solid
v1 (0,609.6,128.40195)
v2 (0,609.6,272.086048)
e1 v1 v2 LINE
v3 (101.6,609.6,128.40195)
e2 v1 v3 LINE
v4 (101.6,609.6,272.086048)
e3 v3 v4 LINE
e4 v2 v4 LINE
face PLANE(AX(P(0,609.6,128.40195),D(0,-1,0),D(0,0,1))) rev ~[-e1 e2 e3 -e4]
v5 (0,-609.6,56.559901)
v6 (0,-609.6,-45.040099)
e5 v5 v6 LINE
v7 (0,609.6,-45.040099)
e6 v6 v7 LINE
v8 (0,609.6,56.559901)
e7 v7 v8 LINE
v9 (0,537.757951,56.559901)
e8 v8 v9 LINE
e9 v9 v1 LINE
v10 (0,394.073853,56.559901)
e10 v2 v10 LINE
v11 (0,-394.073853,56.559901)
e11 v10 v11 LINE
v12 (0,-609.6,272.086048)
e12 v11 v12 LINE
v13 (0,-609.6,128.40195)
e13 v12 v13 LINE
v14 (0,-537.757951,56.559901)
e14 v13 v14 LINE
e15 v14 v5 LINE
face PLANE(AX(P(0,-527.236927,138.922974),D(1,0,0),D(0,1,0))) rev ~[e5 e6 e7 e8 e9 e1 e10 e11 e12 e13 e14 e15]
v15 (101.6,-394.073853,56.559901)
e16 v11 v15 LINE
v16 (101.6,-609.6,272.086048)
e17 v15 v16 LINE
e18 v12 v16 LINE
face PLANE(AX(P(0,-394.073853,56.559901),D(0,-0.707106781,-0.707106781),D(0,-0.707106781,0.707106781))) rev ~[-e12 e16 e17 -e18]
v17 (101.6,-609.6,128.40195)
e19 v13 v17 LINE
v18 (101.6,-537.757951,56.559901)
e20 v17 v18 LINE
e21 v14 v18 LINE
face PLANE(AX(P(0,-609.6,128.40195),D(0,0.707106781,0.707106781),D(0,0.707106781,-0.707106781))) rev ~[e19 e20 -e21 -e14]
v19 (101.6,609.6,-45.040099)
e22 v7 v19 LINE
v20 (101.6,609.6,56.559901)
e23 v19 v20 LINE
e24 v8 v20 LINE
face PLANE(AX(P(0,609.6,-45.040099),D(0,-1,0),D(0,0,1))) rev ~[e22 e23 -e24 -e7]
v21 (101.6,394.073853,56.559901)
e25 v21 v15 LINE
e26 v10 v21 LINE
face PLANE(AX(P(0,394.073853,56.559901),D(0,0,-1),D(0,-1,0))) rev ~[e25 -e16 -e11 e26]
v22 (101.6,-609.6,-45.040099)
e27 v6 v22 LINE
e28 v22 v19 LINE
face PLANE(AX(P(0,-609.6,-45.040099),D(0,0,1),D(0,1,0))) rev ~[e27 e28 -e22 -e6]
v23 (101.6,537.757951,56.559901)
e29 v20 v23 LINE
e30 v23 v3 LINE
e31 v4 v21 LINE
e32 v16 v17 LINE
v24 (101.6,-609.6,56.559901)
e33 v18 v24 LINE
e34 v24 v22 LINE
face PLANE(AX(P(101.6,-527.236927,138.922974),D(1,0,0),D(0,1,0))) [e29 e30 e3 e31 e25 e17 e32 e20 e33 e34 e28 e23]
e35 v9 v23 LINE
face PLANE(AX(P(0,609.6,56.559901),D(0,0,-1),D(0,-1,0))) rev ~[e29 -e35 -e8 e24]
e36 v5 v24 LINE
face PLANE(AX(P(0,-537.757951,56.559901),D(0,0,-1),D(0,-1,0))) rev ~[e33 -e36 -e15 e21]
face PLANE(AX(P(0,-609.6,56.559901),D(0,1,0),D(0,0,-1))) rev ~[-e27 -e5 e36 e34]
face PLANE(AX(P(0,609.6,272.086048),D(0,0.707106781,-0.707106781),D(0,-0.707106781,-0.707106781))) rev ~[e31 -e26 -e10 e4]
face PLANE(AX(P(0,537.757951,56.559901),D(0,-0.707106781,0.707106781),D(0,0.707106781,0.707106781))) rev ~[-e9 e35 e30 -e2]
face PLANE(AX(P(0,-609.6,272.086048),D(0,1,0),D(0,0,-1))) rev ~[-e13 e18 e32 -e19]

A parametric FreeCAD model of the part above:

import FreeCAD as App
import Part
import Sketcher

V = App.Vector
Q = App.Units.Quantity

doc = App.newDocument("Part")
params = doc.addObject("Spreadsheet::Sheet", "Params")
for row, (alias, value) in enumerate([
    ("sketch1_width", "48 in"),
    ("sketch1_height", "4 in"),
    ("sketch1_length", "4 in"),
    ("sketch1_length2", "12 in"),
    ("pad1_length", "4 in"),
], start=1):
    params.set(f"A{row}", alias)
    params.set(f"B{row}", "=" + value)
    params.setAlias(f"B{row}", alias)

body = doc.addObject("PartDesign::Body", "Body")

sketch1 = body.newObject("Sketcher::SketchObject", "Sketch")
sketch1.AttachmentSupport = (doc.getObject("YZ_Plane"), [""])
sketch1.MapMode = "FlatFace"
sketch1.addGeometry([
    Part.LineSegment(V(-609.6, 128.40195, 0), V(-537.757951, 56.559901, 0)),
    Part.LineSegment(V(-537.757951, 56.559901, 0), V(-609.6, 56.559901, 0)),
    Part.LineSegment(V(-609.6, 56.559901, 0), V(-609.6, -45.040099, 0)),
    Part.LineSegment(V(-609.6, -45.040099, 0), V(609.6, -45.040099, 0)),
    Part.LineSegment(V(609.6, -45.040099, 0), V(609.6, 56.559901, 0)),
    Part.LineSegment(V(609.6, 56.559901, 0), V(537.757951, 56.559901, 0)),
    Part.LineSegment(V(537.757951, 56.559901, 0), V(609.6, 128.40195, 0)),
    Part.LineSegment(V(609.6, 128.40195, 0), V(609.6, 272.086048, 0)),
    Part.LineSegment(V(609.6, 272.086048, 0), V(394.073853, 56.559901, 0)),
    Part.LineSegment(V(394.073853, 56.559901, 0), V(-394.073853, 56.559901, 0)),
    Part.LineSegment(V(-394.073853, 56.559901, 0), V(-609.6, 272.086048, 0)),
    Part.LineSegment(V(-609.6, 272.086048, 0), V(-609.6, 128.40195, 0)),
], False)
sketch1.addConstraint([
    Sketcher.Constraint("Coincident", 0, 2, 1, 1),
    Sketcher.Constraint("Coincident", 1, 2, 2, 1),
    Sketcher.Constraint("Coincident", 2, 2, 3, 1),
    Sketcher.Constraint("Coincident", 3, 2, 4, 1),
    Sketcher.Constraint("Coincident", 4, 2, 5, 1),
    Sketcher.Constraint("Coincident", 5, 2, 6, 1),
    Sketcher.Constraint("Coincident", 6, 2, 7, 1),
    Sketcher.Constraint("Coincident", 7, 2, 8, 1),
    Sketcher.Constraint("Coincident", 8, 2, 9, 1),
    Sketcher.Constraint("Coincident", 9, 2, 10, 1),
    Sketcher.Constraint("Coincident", 10, 2, 11, 1),
    Sketcher.Constraint("Coincident", 11, 2, 0, 1),
    Sketcher.Constraint("Horizontal", 1),
    Sketcher.Constraint("Vertical", 2),
    Sketcher.Constraint("Horizontal", 3),
    Sketcher.Constraint("Vertical", 4),
    Sketcher.Constraint("Horizontal", 5),
    Sketcher.Constraint("Vertical", 7),
    Sketcher.Constraint("Horizontal", 9),
    Sketcher.Constraint("Vertical", 11),
    Sketcher.Constraint("Symmetric", 1, 2, 4, 2, -2),
    Sketcher.Constraint("Symmetric", 7, 2, 10, 2, -2),
    Sketcher.Constraint("Perpendicular", 0, 6),
    Sketcher.Constraint("Parallel", 6, 8),
    Sketcher.Constraint("Perpendicular", 8, 10),
    Sketcher.Constraint("Horizontal", 5, 2, 8, 2),
    Sketcher.Constraint("Horizontal", 6, 2, 11, 2),
    Sketcher.Constraint("Vertical", 4, 2, 6, 2),
    Sketcher.Constraint("Equal", 1, 5),
    Sketcher.Constraint("DistanceX", 3, 1, 3, 2, Q("48 in")),
    Sketcher.Constraint("DistanceY", 2, 2, 2, 1, Q("4 in")),
    Sketcher.Constraint("Distance", 0, Q("4 in")),
    Sketcher.Constraint("Distance", 8, Q("12 in")),
    Sketcher.Constraint("DistanceY", -1, 1, 0, 2, 56.559901),
])
sketch1.setExpression("Constraints[29]", "Params.sketch1_width")
sketch1.setExpression("Constraints[30]", "Params.sketch1_height")
sketch1.setExpression("Constraints[31]", "Params.sketch1_length")
sketch1.setExpression("Constraints[32]", "Params.sketch1_length2")
pad1 = body.newObject("PartDesign::Pad", "Pad")
pad1.Profile = sketch1
pad1.setExpression("Length", "Params.pad1_length")

doc.recompute()
